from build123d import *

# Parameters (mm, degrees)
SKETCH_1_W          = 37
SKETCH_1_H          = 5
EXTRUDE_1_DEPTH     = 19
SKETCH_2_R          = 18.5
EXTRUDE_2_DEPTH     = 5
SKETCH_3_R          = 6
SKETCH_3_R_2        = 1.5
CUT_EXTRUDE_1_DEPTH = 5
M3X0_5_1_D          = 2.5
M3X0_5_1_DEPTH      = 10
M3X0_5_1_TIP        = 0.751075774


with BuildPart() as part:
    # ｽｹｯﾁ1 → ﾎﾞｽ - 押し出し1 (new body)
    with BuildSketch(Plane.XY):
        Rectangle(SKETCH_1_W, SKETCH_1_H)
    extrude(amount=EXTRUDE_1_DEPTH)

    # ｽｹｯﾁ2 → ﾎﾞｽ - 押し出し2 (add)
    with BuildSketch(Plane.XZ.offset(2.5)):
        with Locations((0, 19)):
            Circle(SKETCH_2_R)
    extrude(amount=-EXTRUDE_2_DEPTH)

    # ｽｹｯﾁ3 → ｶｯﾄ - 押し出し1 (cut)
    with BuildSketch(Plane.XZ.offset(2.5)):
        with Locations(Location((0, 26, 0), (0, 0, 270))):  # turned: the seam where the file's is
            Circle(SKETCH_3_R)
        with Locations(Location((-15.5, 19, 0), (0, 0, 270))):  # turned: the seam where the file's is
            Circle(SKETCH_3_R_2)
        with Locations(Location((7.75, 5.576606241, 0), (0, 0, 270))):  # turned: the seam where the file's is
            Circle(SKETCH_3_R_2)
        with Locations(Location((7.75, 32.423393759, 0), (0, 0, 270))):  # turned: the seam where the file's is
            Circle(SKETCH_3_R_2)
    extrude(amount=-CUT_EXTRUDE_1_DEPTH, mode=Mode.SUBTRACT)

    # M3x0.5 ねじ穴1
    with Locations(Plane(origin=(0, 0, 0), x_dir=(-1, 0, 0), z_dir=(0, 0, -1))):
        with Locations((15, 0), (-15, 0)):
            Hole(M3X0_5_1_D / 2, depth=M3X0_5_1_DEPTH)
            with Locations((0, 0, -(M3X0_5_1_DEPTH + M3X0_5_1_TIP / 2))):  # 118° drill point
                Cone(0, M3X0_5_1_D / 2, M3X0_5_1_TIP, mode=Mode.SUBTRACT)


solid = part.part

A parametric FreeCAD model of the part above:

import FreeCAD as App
import Part
import Sketcher
from FreeCAD import Vector

doc = App.newDocument("Part")
body = doc.addObject("PartDesign::Body", "Body")

# Sketch on XY plane
sketch1 = body.newObject("Sketcher::SketchObject", "Sketch")
sketch1.AttachmentSupport = (doc.getObject("XY_Plane"), [""])
sketch1.MapMode = "FlatFace"
sketch1.addGeometry([
    Part.LineSegment(Vector(-18.5, 2.5, 0), Vector(-18.5, -2.5, 0)),
    Part.LineSegment(Vector(-18.5, -2.5, 0), Vector(18.5, -2.5, 0)),
    Part.LineSegment(Vector(18.5, -2.5, 0), Vector(18.5, 2.5, 0)),
    Part.LineSegment(Vector(18.5, 2.5, 0), Vector(-18.5, 2.5, 0)),
], False)
sketch1.addConstraint([
    Sketcher.Constraint("Coincident", 0, 2, 1, 1),
    Sketcher.Constraint("Coincident", 1, 2, 2, 1),
    Sketcher.Constraint("Coincident", 2, 2, 3, 1),
    Sketcher.Constraint("Coincident", 3, 2, 0, 1),
    Sketcher.Constraint("Vertical", 0),
    Sketcher.Constraint("Horizontal", 1),
    Sketcher.Constraint("Vertical", 2),
    Sketcher.Constraint("Horizontal", 3),
    Sketcher.Constraint("Symmetric", 0, 2, 2, 2, -1, 1),
    Sketcher.Constraint("DistanceX", 1, 1, 1, 2, 37.0),
    Sketcher.Constraint("DistanceY", 0, 2, 0, 1, 5.0),
])
pad1 = body.newObject("PartDesign::Pad", "Pad")
pad1.Profile = sketch1
pad1.Length = 19

# Sketch on XZ plane
sketch2 = body.newObject("Sketcher::SketchObject", "Sketch001")
sketch2.AttachmentSupport = (doc.getObject("XZ_Plane"), [""])
sketch2.MapMode = "FlatFace"
sketch2.AttachmentOffset = App.Placement(Vector(0, 0, 2.5), App.Rotation())
sketch2.addGeometry(Part.Circle(Vector(0, 19, 0), Vector(0, 0, 1), 18.5), False)
sketch2.addConstraint([
    Sketcher.Constraint("PointOnObject", 0, 3, -2),
    Sketcher.Constraint("Diameter", 0, 37.0),
    Sketcher.Constraint("DistanceY", -1, 1, 0, 3, 19.0),
])
pad2 = body.newObject("PartDesign::Pad", "Pad001")
pad2.Profile = sketch2
pad2.Length = 5
pad2.Reversed = True

# Sketch on XZ plane
sketch3 = body.newObject("Sketcher::SketchObject", "Sketch002")
sketch3.AttachmentSupport = (doc.getObject("XZ_Plane"), [""])
sketch3.MapMode = "FlatFace"
sketch3.AttachmentOffset = App.Placement(Vector(0, 0, 2.5), App.Rotation())
sketch3.addGeometry([
    Part.Circle(Vector(0, 26, 0), Vector(0, 0, 1), 6),
    Part.Circle(Vector(-15.5, 19, 0), Vector(0, 0, 1), 1.5),
    Part.Circle(Vector(7.75, 5.576606, 0), Vector(0, 0, 1), 1.5),
    Part.Circle(Vector(7.75, 32.423394, 0), Vector(0, 0, 1), 1.5),
], False)
sketch3.addConstraint([
    Sketcher.Constraint("Equal", 1, 2),
    Sketcher.Constraint("Equal", 2, 3),
    Sketcher.Constraint("PointOnObject", 0, 3, -2),
    Sketcher.Constraint("Vertical", 2, 3, 3, 3),
    Sketcher.Constraint("Diameter", 0, 12.0),
    Sketcher.Constraint("Diameter", 1, 3.0),
    Sketcher.Constraint("DistanceY", -1, 1, 0, 3, 26.0),
    Sketcher.Constraint("DistanceY", -1, 1, 1, 3, 19.0),
    Sketcher.Constraint("DistanceX", 1, 3, -1, 1, 15.5),
    Sketcher.Constraint("DistanceX", -1, 1, 2, 3, 7.75),
    Sketcher.Constraint("DistanceY", -1, 1, 2, 3, 5.576606),
    Sketcher.Constraint("DistanceY", -1, 1, 3, 3, 32.423394),
])
pocket1 = body.newObject("PartDesign::Pocket", "Pocket")
pocket1.Profile = sketch3
pocket1.Length = 5

# Sketch on XY plane
sketch4 = body.newObject("Sketcher::SketchObject", "Sketch003")
sketch4.AttachmentSupport = (doc.getObject("XY_Plane"), [""])
sketch4.MapMode = "FlatFace"
sketch4.addGeometry([
    Part.Circle(Vector(-15, 0, 0), Vector(0, 0, 1), 1.25),
    Part.Circle(Vector(15, 0, 0), Vector(0, 0, 1), 1.25),
], False)
sketch4.addConstraint([
    Sketcher.Constraint("Equal", 0, 1),
    Sketcher.Constraint("Symmetric", 0, 3, 1, 3, -1, 1),
    Sketcher.Constraint("PointOnObject", 0, 3, -1),
    Sketcher.Constraint("Diameter", 0, 2.5),
    Sketcher.Constraint("DistanceX", 0, 3, -1, 1, 15.0),
])
doc.recompute()
hole = body.newObject("PartDesign::Hole", "Hole")
hole.Profile = sketch4
hole.ThreadType = "None"
hole.Diameter = 2.5
hole.DepthType = "Dimension"
hole.Depth = 10
hole.DrillPoint = "Angled"
hole.DrillPointAngle = 118
hole.Reversed = True

doc.recompute()
